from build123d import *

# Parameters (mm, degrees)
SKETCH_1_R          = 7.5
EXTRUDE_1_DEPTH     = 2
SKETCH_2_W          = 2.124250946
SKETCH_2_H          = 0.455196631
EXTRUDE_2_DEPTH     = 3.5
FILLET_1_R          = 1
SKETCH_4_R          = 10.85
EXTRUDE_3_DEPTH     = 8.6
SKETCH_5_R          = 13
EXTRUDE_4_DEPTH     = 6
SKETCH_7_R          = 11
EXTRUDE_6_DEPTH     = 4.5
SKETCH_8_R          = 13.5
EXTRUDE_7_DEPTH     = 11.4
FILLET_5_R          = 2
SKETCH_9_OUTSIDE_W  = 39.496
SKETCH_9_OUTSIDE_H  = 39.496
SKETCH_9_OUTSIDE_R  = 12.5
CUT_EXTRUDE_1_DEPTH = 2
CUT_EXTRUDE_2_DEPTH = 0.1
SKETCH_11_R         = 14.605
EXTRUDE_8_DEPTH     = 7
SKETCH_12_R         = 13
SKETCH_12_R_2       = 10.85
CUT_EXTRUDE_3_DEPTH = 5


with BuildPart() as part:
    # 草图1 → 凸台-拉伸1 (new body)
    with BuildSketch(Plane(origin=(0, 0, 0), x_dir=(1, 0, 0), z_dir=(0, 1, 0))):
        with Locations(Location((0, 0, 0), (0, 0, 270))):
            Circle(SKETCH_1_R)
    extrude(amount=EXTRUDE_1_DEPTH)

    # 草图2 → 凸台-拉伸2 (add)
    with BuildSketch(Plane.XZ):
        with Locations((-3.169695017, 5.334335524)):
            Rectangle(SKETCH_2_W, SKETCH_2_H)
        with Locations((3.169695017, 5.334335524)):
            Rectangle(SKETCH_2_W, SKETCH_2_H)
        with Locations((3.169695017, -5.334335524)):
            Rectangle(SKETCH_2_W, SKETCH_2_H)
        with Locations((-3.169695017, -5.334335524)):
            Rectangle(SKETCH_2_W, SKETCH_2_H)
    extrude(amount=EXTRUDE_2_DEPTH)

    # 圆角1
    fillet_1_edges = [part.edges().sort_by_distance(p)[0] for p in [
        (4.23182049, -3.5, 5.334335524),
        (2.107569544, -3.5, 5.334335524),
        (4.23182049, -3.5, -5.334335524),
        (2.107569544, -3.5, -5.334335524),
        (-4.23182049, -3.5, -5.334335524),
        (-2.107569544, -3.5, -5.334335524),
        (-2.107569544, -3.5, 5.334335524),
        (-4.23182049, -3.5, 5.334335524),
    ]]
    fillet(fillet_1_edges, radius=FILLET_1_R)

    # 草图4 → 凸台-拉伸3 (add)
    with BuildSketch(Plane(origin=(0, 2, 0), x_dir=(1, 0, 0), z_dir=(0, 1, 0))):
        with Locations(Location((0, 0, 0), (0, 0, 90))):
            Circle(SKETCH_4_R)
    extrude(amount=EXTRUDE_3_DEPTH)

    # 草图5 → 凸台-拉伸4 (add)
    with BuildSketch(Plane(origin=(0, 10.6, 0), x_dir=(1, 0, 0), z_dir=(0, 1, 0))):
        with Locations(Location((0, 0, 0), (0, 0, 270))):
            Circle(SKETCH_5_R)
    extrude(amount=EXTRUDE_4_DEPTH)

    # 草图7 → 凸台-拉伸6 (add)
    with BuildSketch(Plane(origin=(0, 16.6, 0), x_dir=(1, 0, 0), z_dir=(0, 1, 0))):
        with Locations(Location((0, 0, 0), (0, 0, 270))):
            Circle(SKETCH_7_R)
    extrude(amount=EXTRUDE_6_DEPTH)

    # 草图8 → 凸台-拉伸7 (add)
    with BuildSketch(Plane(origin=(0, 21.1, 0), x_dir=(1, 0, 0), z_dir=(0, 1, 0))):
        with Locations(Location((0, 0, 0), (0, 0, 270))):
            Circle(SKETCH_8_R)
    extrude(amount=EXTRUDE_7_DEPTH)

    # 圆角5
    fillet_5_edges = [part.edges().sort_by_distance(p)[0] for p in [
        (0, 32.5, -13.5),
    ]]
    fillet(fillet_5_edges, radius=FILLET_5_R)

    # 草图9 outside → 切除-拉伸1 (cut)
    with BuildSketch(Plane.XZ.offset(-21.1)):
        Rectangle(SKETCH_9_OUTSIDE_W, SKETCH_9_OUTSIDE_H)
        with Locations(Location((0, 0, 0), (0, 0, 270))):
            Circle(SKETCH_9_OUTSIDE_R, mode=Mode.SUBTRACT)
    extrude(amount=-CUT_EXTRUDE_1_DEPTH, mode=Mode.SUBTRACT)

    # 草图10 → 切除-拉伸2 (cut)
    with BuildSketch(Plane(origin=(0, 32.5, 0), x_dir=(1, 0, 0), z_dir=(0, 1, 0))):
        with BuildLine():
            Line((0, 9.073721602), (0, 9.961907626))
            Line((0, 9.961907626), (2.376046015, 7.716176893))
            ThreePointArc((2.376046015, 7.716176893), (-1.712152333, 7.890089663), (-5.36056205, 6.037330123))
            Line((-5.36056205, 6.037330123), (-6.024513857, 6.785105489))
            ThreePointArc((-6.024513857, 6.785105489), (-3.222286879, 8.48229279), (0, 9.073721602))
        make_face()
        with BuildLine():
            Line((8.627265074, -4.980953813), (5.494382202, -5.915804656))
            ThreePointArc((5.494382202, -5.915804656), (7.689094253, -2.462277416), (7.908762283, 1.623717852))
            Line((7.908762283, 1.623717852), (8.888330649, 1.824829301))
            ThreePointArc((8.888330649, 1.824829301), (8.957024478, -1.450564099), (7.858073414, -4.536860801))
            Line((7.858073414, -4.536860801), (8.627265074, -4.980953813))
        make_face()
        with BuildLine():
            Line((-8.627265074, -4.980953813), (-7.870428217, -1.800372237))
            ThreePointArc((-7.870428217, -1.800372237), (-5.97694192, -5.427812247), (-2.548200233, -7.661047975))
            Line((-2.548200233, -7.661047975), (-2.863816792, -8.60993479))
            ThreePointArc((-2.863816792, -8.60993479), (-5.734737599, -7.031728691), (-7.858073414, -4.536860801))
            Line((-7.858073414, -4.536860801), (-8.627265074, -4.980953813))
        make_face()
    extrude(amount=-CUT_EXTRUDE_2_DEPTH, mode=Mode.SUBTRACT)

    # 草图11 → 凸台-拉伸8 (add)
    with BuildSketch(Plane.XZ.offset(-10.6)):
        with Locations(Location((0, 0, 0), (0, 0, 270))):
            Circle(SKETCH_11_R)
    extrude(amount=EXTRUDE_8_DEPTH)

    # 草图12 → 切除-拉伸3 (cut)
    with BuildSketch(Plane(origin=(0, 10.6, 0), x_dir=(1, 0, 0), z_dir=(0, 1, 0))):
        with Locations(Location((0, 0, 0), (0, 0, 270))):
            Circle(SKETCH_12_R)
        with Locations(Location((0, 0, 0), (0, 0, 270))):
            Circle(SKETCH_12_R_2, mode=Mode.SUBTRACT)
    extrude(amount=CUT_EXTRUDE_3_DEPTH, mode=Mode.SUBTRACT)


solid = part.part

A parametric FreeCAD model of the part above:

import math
import FreeCAD as App
import Part
import Sketcher
from FreeCAD import Vector
Q = App.Units.Quantity


def edges_at(feature, points):
    """Names of the edges that pass closest to the given points."""
    edges = feature.Shape.Edges
    near = lambda p: min(range(len(edges)), key=lambda i: edges[i].distToShape(Part.Vertex(*p))[0])
    return sorted({f"Edge{near(p) + 1}" for p in points})


def add_polygon(sketch, points):
    """Adds a closed chain of lines whose ends are joined by coincident constraints."""
    first, n = sketch.GeometryCount, len(points)
    for a, b in zip(points, points[1:] + points[:1]):
        sketch.addGeometry(Part.LineSegment(App.Vector(*a, 0), App.Vector(*b, 0)), False)
    for i in range(n):
        sketch.addConstraint(Sketcher.Constraint("Coincident", first + i, 2, first + (i + 1) % n, 1))

doc = App.newDocument("Part")
params = doc.addObject("Spreadsheet::Sheet", "Params")
for row, (alias, value) in enumerate([
    ("sketch1_diameter", "15 mm"),
    ("pad1_length", "2 mm"),
    ("pad2_length", "3.5 mm"),
    ("fillet_radius", "1 mm"),
    ("sketch3_diameter", "21.7 mm"),
    ("pad3_length", "8.6 mm"),
    ("sketch4_diameter", "26 mm"),
    ("pad4_length", "6 mm"),
    ("sketch5_diameter", "22 mm"),
    ("pad5_length", "4.5 mm"),
    ("sketch6_diameter", "27 mm"),
    ("pad6_length", "11.4 mm"),
    ("fillet2_radius", "2 mm"),
    ("sketch7_diameter", "25 mm"),
    ("pocket1_length", "2 mm"),
    ("sketch8_length", "1 mm"),
    ("pocket2_length", "0.1 mm"),
    ("sketch9_diameter", "29.21 mm"),
    ("pad7_length", "7 mm"),
    ("sketch10_diameter", "26 mm"),
    ("sketch10_diameter2", "21.7 mm"),
    ("pocket3_length", "5 mm"),
], start=1):
    params.set(f"A{row}", alias)
    params.set(f"B{row}", "=" + value)
    params.setAlias(f"B{row}", alias)

body = doc.addObject("PartDesign::Body", "Body")

sketch1 = body.newObject("Sketcher::SketchObject", "Sketch")
sketch1.AttachmentSupport = (doc.getObject("XZ_Plane"), [""])
sketch1.MapMode = "FlatFace"
sketch1.addGeometry(Part.Circle(Vector(0, 0, 0), Vector(0, 0, 1), 8), False)
sketch1.addConstraint([
    Sketcher.Constraint("Coincident", 0, 3, -1, 1),
    Sketcher.Constraint("Diameter", 0, 15.0),
])
sketch1.setExpression("Constraints[1]", "Params.sketch1_diameter")
pad1 = body.newObject("PartDesign::Pad", "Pad")
pad1.Profile = sketch1
pad1.setExpression("Length", "Params.pad1_length")
pad1.Reversed = True

sketch2 = body.newObject("Sketcher::SketchObject", "Sketch001")
sketch2.AttachmentSupport = (doc.getObject("XZ_Plane"), [""])
sketch2.MapMode = "FlatFace"
add_polygon(sketch2, [(-4.23, 5.56), (-4.23, 5.11), (-2.11, 5.11), (-2.11, 5.56)])
add_polygon(sketch2, [(2.11, 5.56), (2.11, 5.11), (4.23, 5.11), (4.23, 5.56)])
add_polygon(sketch2, [(2.11, -5.11), (2.11, -5.56), (4.23, -5.56), (4.23, -5.11)])
add_polygon(sketch2, [(-4.23, -5.11), (-4.23, -5.56), (-2.11, -5.56), (-2.11, -5.11)])
sketch2.addConstraint([
    Sketcher.Constraint("Vertical", 0),
    Sketcher.Constraint("Horizontal", 1),
    Sketcher.Constraint("Vertical", 2),
    Sketcher.Constraint("Horizontal", 3),
    Sketcher.Constraint("Vertical", 4),
    Sketcher.Constraint("Horizontal", 5),
    Sketcher.Constraint("Vertical", 6),
    Sketcher.Constraint("Horizontal", 7),
    Sketcher.Constraint("Vertical", 8),
    Sketcher.Constraint("Horizontal", 9),
    Sketcher.Constraint("Vertical", 10),
    Sketcher.Constraint("Horizontal", 11),
    Sketcher.Constraint("Vertical", 12),
    Sketcher.Constraint("Horizontal", 13),
    Sketcher.Constraint("Vertical", 14),
    Sketcher.Constraint("Horizontal", 15),
    Sketcher.Constraint("Symmetric", 2, 2, 8, 2, -1, 1),
    Sketcher.Constraint("Symmetric", 0, 2, 10, 2, -1, 1),
    Sketcher.Constraint("Symmetric", 6, 2, 12, 2, -1, 1),
    Sketcher.Constraint("Symmetric", 4, 2, 14, 2, -1, 1),
    Sketcher.Constraint("Symmetric", 1, 2, 4, 2, -2),
    Sketcher.Constraint("Symmetric", 3, 2, 6, 2, -2),
    Sketcher.Constraint("DistanceX", 1, 1, 1, 2, 2.124251),
    Sketcher.Constraint("DistanceY", 0, 2, 0, 1, 0.455197),
    Sketcher.Constraint("DistanceX", 0, 2, -1, 1, 4.23182),
    Sketcher.Constraint("DistanceY", 8, 2, 4, 2, 10.668671),
])
pad2 = body.newObject("PartDesign::Pad", "Pad001")
pad2.Profile = sketch2
pad2.setExpression("Length", "Params.pad2_length")
doc.recompute()

fillet = body.newObject("PartDesign::Fillet", "Fillet")
fillet.Base = (pad2, edges_at(pad2, [
    (4.232, -3.5, 5.334),
    (2.108, -3.5, 5.334),
    (4.232, -3.5, -5.334),
    (2.108, -3.5, -5.334),
    (-4.232, -3.5, -5.334),
    (-2.108, -3.5, -5.334),
    (-2.108, -3.5, 5.334),
    (-4.232, -3.5, 5.334),
]))
fillet.setExpression("Radius", "Params.fillet_radius")

sketch3 = body.newObject("Sketcher::SketchObject", "Sketch002")
sketch3.AttachmentSupport = (doc.getObject("XZ_Plane"), [""])
sketch3.MapMode = "FlatFace"
sketch3.AttachmentOffset = App.Placement(Vector(0, 0, -2), App.Rotation())
sketch3.addGeometry(Part.Circle(Vector(0, 0, 0), Vector(0, 0, 1), 11), False)
sketch3.addConstraint([
    Sketcher.Constraint("Coincident", 0, 3, -1, 1),
    Sketcher.Constraint("Diameter", 0, 21.7),
])
sketch3.setExpression("Constraints[1]", "Params.sketch3_diameter")
pad3 = body.newObject("PartDesign::Pad", "Pad002")
pad3.Profile = sketch3
pad3.setExpression("Length", "Params.pad3_length")
pad3.Reversed = True

sketch4 = body.newObject("Sketcher::SketchObject", "Sketch003")
sketch4.AttachmentSupport = (doc.getObject("XZ_Plane"), [""])
sketch4.MapMode = "FlatFace"
sketch4.AttachmentOffset = App.Placement(Vector(0, 0, -10.6), App.Rotation())
sketch4.addGeometry(Part.Circle(Vector(0, 0, 0), Vector(0, 0, 1), 13), False)
sketch4.addConstraint([
    Sketcher.Constraint("Coincident", 0, 3, -1, 1),
    Sketcher.Constraint("Diameter", 0, 26.0),
])
sketch4.setExpression("Constraints[1]", "Params.sketch4_diameter")
pad4 = body.newObject("PartDesign::Pad", "Pad003")
pad4.Profile = sketch4
pad4.setExpression("Length", "Params.pad4_length")
pad4.Reversed = True

sketch5 = body.newObject("Sketcher::SketchObject", "Sketch004")
sketch5.AttachmentSupport = (doc.getObject("XZ_Plane"), [""])
sketch5.MapMode = "FlatFace"
sketch5.AttachmentOffset = App.Placement(Vector(0, 0, -16.6), App.Rotation())
sketch5.addGeometry(Part.Circle(Vector(0, 0, 0), Vector(0, 0, 1), 11), False)
sketch5.addConstraint([
    Sketcher.Constraint("Coincident", 0, 3, -1, 1),
    Sketcher.Constraint("Diameter", 0, 22.0),
])
sketch5.setExpression("Constraints[1]", "Params.sketch5_diameter")
pad5 = body.newObject("PartDesign::Pad", "Pad004")
pad5.Profile = sketch5
pad5.setExpression("Length", "Params.pad5_length")
pad5.Reversed = True

sketch6 = body.newObject("Sketcher::SketchObject", "Sketch005")
sketch6.AttachmentSupport = (doc.getObject("XZ_Plane"), [""])
sketch6.MapMode = "FlatFace"
sketch6.AttachmentOffset = App.Placement(Vector(0, 0, -21.1), App.Rotation())
sketch6.addGeometry(Part.Circle(Vector(0, 0, 0), Vector(0, 0, 1), 14), False)
sketch6.addConstraint([
    Sketcher.Constraint("Coincident", 0, 3, -1, 1),
    Sketcher.Constraint("Diameter", 0, 27.0),
])
sketch6.setExpression("Constraints[1]", "Params.sketch6_diameter")
pad6 = body.newObject("PartDesign::Pad", "Pad005")
pad6.Profile = sketch6
pad6.setExpression("Length", "Params.pad6_length")
pad6.Reversed = True
doc.recompute()

fillet2 = body.newObject("PartDesign::Fillet", "Fillet001")
fillet2.Base = (pad6, edges_at(pad6, [(0, 32.5, -13.5)]))
fillet2.setExpression("Radius", "Params.fillet2_radius")

sketch7 = body.newObject("Sketcher::SketchObject", "Sketch006")
sketch7.AttachmentSupport = (doc.getObject("XZ_Plane"), [""])
sketch7.MapMode = "FlatFace"
sketch7.AttachmentOffset = App.Placement(Vector(0, 0, -21.1), App.Rotation())
add_polygon(sketch7, [(-20, 20), (-20, -20), (20, -20), (20, 20)])
sketch7.addGeometry(Part.Circle(Vector(0, 0, 0), Vector(0, 0, 1), 12), False)
sketch7.addConstraint([
    Sketcher.Constraint("Vertical", 0),
    Sketcher.Constraint("Horizontal", 1),
    Sketcher.Constraint("Vertical", 2),
    Sketcher.Constraint("Horizontal", 3),
    Sketcher.Constraint("Coincident", 4, 3, -1, 1),
    Sketcher.Constraint("Symmetric", 0, 2, 2, 2, -1, 1),
    Sketcher.Constraint("Equal", 3, 0),
    Sketcher.Constraint("Diameter", 4, 25.0),
    Sketcher.Constraint("DistanceX", 1, 1, 1, 2, 39.496),
])
sketch7.setExpression("Constraints[11]", "Params.sketch7_diameter")
pocket1 = body.newObject("PartDesign::Pocket", "Pocket")
pocket1.Profile = sketch7
pocket1.setExpression("Length", "Params.pocket1_length")

sketch8 = body.newObject("Sketcher::SketchObject", "Sketch007")
sketch8.AttachmentSupport = (doc.getObject("XZ_Plane"), [""])
sketch8.MapMode = "FlatFace"
sketch8.AttachmentOffset = App.Placement(Vector(0, 0, -32.5), App.Rotation())
sketch8.addGeometry([
    Part.LineSegment(Vector(0, -10, 0), Vector(0, -9.1, 0)),
    Part.ArcOfCircle(Part.Circle(Vector(0, 0, 0), Vector(0, 0, 1), 9.1), math.radians(-132), math.radians(-90)),
    Part.LineSegment(Vector(-6, -6.8, 0), Vector(-5.4, -6, 0)),
    Part.ArcOfCircle(Part.Circle(Vector(0, 0, 0), Vector(0, 0, 1), 8.1), math.radians(-132), math.radians(-73)),
    Part.LineSegment(Vector(2.4, -7.7, 0), Vector(0, -10, 0)),
    Part.LineSegment(Vector(5.5, 5.9, 0), Vector(8.6, 5, 0)),
    Part.LineSegment(Vector(8.6, 5, 0), Vector(7.9, 4.5, 0)),
    Part.ArcOfCircle(Part.Circle(Vector(0, 0, 0), Vector(0, 0, 1), 9.1), math.radians(-12), math.radians(30)),
    Part.LineSegment(Vector(8.9, -1.8, 0), Vector(7.9, -1.6, 0)),
    Part.ArcOfCircle(Part.Circle(Vector(0, 0, 0), Vector(0, 0, 1), 8.1), math.radians(-12), math.radians(47)),
    Part.LineSegment(Vector(-7.9, 1.8, 0), Vector(-8.6, 5, 0)),
    Part.LineSegment(Vector(-8.6, 5, 0), Vector(-7.9, 4.5, 0)),
    Part.ArcOfCircle(Part.Circle(Vector(0, 0, 0), Vector(0, 0, 1), 9.1), math.radians(108), math.radians(150)),
    Part.LineSegment(Vector(-2.9, 8.6, 0), Vector(-2.5, 7.7, 0)),
    Part.ArcOfCircle(Part.Circle(Vector(0, 0, 0), Vector(0, 0, 1), 8.1), math.radians(108), math.radians(167)),
], False)
sketch8.addConstraint([
    Sketcher.Constraint("Coincident", 0, 2, 1, 2),
    Sketcher.Constraint("Coincident", 1, 1, 2, 1),
    Sketcher.Constraint("Coincident", 2, 2, 3, 1),
    Sketcher.Constraint("Coincident", 3, 2, 4, 1),
    Sketcher.Constraint("Coincident", 4, 2, 0, 1),
    Sketcher.Constraint("Coincident", 5, 2, 6, 1),
    Sketcher.Constraint("Coincident", 6, 2, 7, 2),
    Sketcher.Constraint("Coincident", 7, 1, 8, 1),
    Sketcher.Constraint("Coincident", 8, 2, 9, 1),
    Sketcher.Constraint("Coincident", 9, 2, 5, 1),
    Sketcher.Constraint("Coincident", 10, 2, 11, 1),
    Sketcher.Constraint("Coincident", 11, 2, 12, 2),
    Sketcher.Constraint("Coincident", 12, 1, 13, 1),
    Sketcher.Constraint("Coincident", 13, 2, 14, 1),
    Sketcher.Constraint("Coincident", 14, 2, 10, 1),
    Sketcher.Constraint("Vertical", 0),
    Sketcher.Constraint("Coincident", 1, 3, -1, 1),
    Sketcher.Constraint("Coincident", 3, 3, -1, 1),
    Sketcher.Constraint("Coincident", 7, 3, -1, 1),
    Sketcher.Constraint("Coincident", 9, 3, -1, 1),
    Sketcher.Constraint("Coincident", 12, 3, -1, 1),
    Sketcher.Constraint("Coincident", 14, 3, -1, 1),
    Sketcher.Constraint("Equal", 1, 7),
    Sketcher.Constraint("Equal", 3, 9),
    Sketcher.Constraint("Equal", 7, 12),
    Sketcher.Constraint("Equal", 9, 14),
    Sketcher.Constraint("Symmetric", 5, 2, 10, 2, -2),
    Sketcher.Constraint("PointOnObject", 0, 2, -2),
    Sketcher.Constraint("Horizontal", 6, 2, 11, 2),
    Sketcher.Constraint("Equal", 4, 5),
    Sketcher.Constraint("Equal", 5, 10),
    Sketcher.Constraint("Angle", 6, Q("-150 deg")),
    Sketcher.Constraint("Distance", 2, 1.0),
    Sketcher.Constraint("Radius", 1, 9.073722),
    Sketcher.Constraint("DistanceX", 13, 2, -1, 1, 2.5482),
    Sketcher.Constraint("DistanceX", 12, 1, 9, 2, 8.358199),
    Sketcher.Constraint("Distance", 4, 3.269389),
    Sketcher.Constraint("DistanceY", 0, 1, 0, 2, 0.888186),
    Sketcher.Constraint("DistanceY", 2, 2, -1, 1, 6.03733),
    Sketcher.Constraint("DistanceY", -1, 1, 6, 2, 4.536861),
    Sketcher.Constraint("DistanceX", -1, 1, 7, 1, 8.888331),
    Sketcher.Constraint("DistanceX", 14, 2, -1, 1, 7.870428),
    Sketcher.Constraint("DistanceX", 1, 1, 2, 2, 0.663952),
    Sketcher.Constraint("DistanceX", 8, 2, 7, 1, 0.979568),
])
sketch8.setExpression("Constraints[32]", "Params.sketch8_length")
pocket2 = body.newObject("PartDesign::Pocket", "Pocket001")
pocket2.Profile = sketch8
pocket2.setExpression("Length", "Params.pocket2_length")
pocket2.Reversed = True

sketch9 = body.newObject("Sketcher::SketchObject", "Sketch008")
sketch9.AttachmentSupport = (doc.getObject("XZ_Plane"), [""])
sketch9.MapMode = "FlatFace"
sketch9.AttachmentOffset = App.Placement(Vector(0, 0, -10.6), App.Rotation())
sketch9.addGeometry(Part.Circle(Vector(0, 0, 0), Vector(0, 0, 1), 15), False)
sketch9.addConstraint([
    Sketcher.Constraint("Coincident", 0, 3, -1, 1),
    Sketcher.Constraint("Diameter", 0, 29.21),
])
sketch9.setExpression("Constraints[1]", "Params.sketch9_diameter")
pad7 = body.newObject("PartDesign::Pad", "Pad006")
pad7.Profile = sketch9
pad7.setExpression("Length", "Params.pad7_length")

sketch10 = body.newObject("Sketcher::SketchObject", "Sketch009")
sketch10.AttachmentSupport = (doc.getObject("XZ_Plane"), [""])
sketch10.MapMode = "FlatFace"
sketch10.AttachmentOffset = App.Placement(Vector(0, 0, -10.6), App.Rotation())
sketch10.addGeometry([
    Part.Circle(Vector(0, 0, 0), Vector(0, 0, 1), 13),
    Part.Circle(Vector(0, 0, 0), Vector(0, 0, 1), 11),
], False)
sketch10.addConstraint([
    Sketcher.Constraint("Coincident", 0, 3, -1, 1),
    Sketcher.Constraint("Coincident", 1, 3, -1, 1),
    Sketcher.Constraint("Diameter", 0, 26.0),
    Sketcher.Constraint("Diameter", 1, 21.7),
])
sketch10.setExpression("Constraints[2]", "Params.sketch10_diameter")
sketch10.setExpression("Constraints[3]", "Params.sketch10_diameter2")
pocket3 = body.newObject("PartDesign::Pocket", "Pocket002")
pocket3.Profile = sketch10
pocket3.setExpression("Length", "Params.pocket3_length")

doc.recompute()
